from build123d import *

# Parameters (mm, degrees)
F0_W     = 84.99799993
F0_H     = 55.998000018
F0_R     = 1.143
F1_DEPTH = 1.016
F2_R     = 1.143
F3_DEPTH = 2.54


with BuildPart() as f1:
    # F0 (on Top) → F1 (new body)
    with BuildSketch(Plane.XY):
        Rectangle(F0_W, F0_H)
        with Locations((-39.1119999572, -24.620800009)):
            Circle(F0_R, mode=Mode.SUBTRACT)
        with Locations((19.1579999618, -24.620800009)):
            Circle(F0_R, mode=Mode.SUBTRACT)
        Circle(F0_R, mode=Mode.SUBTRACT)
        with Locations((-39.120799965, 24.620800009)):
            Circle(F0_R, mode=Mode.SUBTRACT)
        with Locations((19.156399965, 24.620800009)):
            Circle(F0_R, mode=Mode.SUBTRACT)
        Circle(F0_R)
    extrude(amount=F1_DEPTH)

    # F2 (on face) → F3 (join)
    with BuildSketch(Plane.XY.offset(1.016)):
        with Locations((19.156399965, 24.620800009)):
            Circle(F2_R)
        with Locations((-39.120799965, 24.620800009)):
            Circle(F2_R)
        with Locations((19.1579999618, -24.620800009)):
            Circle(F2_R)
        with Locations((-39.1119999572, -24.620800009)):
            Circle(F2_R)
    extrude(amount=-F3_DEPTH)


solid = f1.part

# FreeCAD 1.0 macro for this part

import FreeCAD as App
import Part
import Sketcher
Q = App.Units.Quantity

doc = App.newDocument("Part")
body = doc.addObject("PartDesign::Body", "Body")

# Sketch on XY plane
sketch1 = body.newObject("Sketcher::SketchObject", "Sketch")
sketch1.AttachmentSupport = (doc.getObject("XY_Plane"), [""])
sketch1.MapMode = "FlatFace"
sketch1.addGeometry(Part.LineSegment(App.Vector(-42.5, 28, 0), App.Vector(-42.5, -28, 0)), False)
sketch1.addGeometry(Part.LineSegment(App.Vector(-42.5, -28, 0), App.Vector(42.5, -28, 0)), False)
sketch1.addGeometry(Part.LineSegment(App.Vector(42.5, -28, 0), App.Vector(42.5, 28, 0)), False)
sketch1.addGeometry(Part.LineSegment(App.Vector(42.5, 28, 0), App.Vector(-42.5, 28, 0)), False)
sketch1.addGeometry(Part.Circle(App.Vector(-39.1, -24.6, 0), App.Vector(0, 0, 1), 1.1), False)
sketch1.addGeometry(Part.Circle(App.Vector(19.2, -24.6, 0), App.Vector(0, 0, 1), 1.1), False)
sketch1.addGeometry(Part.Circle(App.Vector(-39.1, 24.6, 0), App.Vector(0, 0, 1), 1.1), False)
sketch1.addGeometry(Part.Circle(App.Vector(19.2, 24.6, 0), App.Vector(0, 0, 1), 1.1), False)
sketch1.addConstraint(Sketcher.Constraint("Coincident", 0, 2, 1, 1))
sketch1.addConstraint(Sketcher.Constraint("Coincident", 1, 2, 2, 1))
sketch1.addConstraint(Sketcher.Constraint("Coincident", 2, 2, 3, 1))
sketch1.addConstraint(Sketcher.Constraint("Coincident", 3, 2, 0, 1))
sketch1.addConstraint(Sketcher.Constraint("Vertical", 0))
sketch1.addConstraint(Sketcher.Constraint("Horizontal", 1))
sketch1.addConstraint(Sketcher.Constraint("Vertical", 2))
sketch1.addConstraint(Sketcher.Constraint("Horizontal", 3))
sketch1.addConstraint(Sketcher.Constraint("Equal", 4, 5))
sketch1.addConstraint(Sketcher.Constraint("Equal", 5, 6))
sketch1.addConstraint(Sketcher.Constraint("Equal", 6, 7))
sketch1.addConstraint(Sketcher.Constraint("Symmetric", 0, 2, 2, 2, -1, 1))
sketch1.addConstraint(Sketcher.Constraint("Horizontal", 4, 3, 5, 3))
sketch1.addConstraint(Sketcher.Constraint("Horizontal", 6, 3, 7, 3))
sketch1.addConstraint(Sketcher.Constraint("Diameter", 4, Q("0.09 in")))
sketch1.addConstraint(Sketcher.Constraint("DistanceY", 0, 2, 4, 3, Q("0.133 in")))
sketch1.addConstraint(Sketcher.Constraint("DistanceX", 0, 2, 6, 3, Q("0.133 in")))
sketch1.addConstraint(Sketcher.Constraint("DistanceX", 7, 3, 1, 2, Q("0.919 in")))
sketch1.addConstraint(Sketcher.Constraint("DistanceY", 7, 3, 2, 2, Q("0.133 in")))
sketch1.addConstraint(Sketcher.Constraint("DistanceX", 1, 1, 1, 2, 84.998))
sketch1.addConstraint(Sketcher.Constraint("DistanceY", 0, 2, 0, 1, 55.998))
sketch1.addConstraint(Sketcher.Constraint("DistanceX", 4, 3, -1, 1, 39.112))
sketch1.addConstraint(Sketcher.Constraint("DistanceX", -1, 1, 5, 3, 19.158))
pad1 = body.newObject("PartDesign::Pad", "Pad")
pad1.Profile = sketch1
pad1.Length = Q("0.04 in")

# Sketch on XY plane
sketch2 = body.newObject("Sketcher::SketchObject", "Sketch001")
sketch2.AttachmentSupport = (doc.getObject("XY_Plane"), [""])
sketch2.MapMode = "FlatFace"
sketch2.AttachmentOffset = App.Placement(App.Vector(0, 0, 0.04 * 25.4), App.Rotation())
sketch2.addGeometry(Part.Circle(App.Vector(19.2, 24.6, 0), App.Vector(0, 0, 1), 1.1), False)
sketch2.addGeometry(Part.Circle(App.Vector(-39.1, 24.6, 0), App.Vector(0, 0, 1), 1.1), False)
sketch2.addGeometry(Part.Circle(App.Vector(19.2, -24.6, 0), App.Vector(0, 0, 1), 1.1), False)
sketch2.addGeometry(Part.Circle(App.Vector(-39.1, -24.6, 0), App.Vector(0, 0, 1), 1.1), False)
sketch2.addConstraint(Sketcher.Constraint("Equal", 0, 1))
sketch2.addConstraint(Sketcher.Constraint("Equal", 1, 2))
sketch2.addConstraint(Sketcher.Constraint("Equal", 2, 3))
sketch2.addConstraint(Sketcher.Constraint("Horizontal", 0, 3, 1, 3))
sketch2.addConstraint(Sketcher.Constraint("Horizontal", 2, 3, 3, 3))
sketch2.addConstraint(Sketcher.Constraint("Diameter", 0, Q("0.09 in")))
sketch2.addConstraint(Sketcher.Constraint("DistanceX", -1, 1, 0, 3, 19.1564))
sketch2.addConstraint(Sketcher.Constraint("DistanceY", -1, 1, 0, 3, 24.6208))
sketch2.addConstraint(Sketcher.Constraint("DistanceX", 1, 3, -1, 1, 39.1208))
sketch2.addConstraint(Sketcher.Constraint("DistanceX", -1, 1, 2, 3, 19.158))
sketch2.addConstraint(Sketcher.Constraint("DistanceY", 2, 3, -1, 1, 24.6208))
sketch2.addConstraint(Sketcher.Constraint("DistanceX", 3, 3, -1, 1, 39.112))
pad2 = body.newObject("PartDesign::Pad", "Pad001")
pad2.Profile = sketch2
pad2.Length = Q("0.1 in")
pad2.Reversed = True

doc.recompute()
